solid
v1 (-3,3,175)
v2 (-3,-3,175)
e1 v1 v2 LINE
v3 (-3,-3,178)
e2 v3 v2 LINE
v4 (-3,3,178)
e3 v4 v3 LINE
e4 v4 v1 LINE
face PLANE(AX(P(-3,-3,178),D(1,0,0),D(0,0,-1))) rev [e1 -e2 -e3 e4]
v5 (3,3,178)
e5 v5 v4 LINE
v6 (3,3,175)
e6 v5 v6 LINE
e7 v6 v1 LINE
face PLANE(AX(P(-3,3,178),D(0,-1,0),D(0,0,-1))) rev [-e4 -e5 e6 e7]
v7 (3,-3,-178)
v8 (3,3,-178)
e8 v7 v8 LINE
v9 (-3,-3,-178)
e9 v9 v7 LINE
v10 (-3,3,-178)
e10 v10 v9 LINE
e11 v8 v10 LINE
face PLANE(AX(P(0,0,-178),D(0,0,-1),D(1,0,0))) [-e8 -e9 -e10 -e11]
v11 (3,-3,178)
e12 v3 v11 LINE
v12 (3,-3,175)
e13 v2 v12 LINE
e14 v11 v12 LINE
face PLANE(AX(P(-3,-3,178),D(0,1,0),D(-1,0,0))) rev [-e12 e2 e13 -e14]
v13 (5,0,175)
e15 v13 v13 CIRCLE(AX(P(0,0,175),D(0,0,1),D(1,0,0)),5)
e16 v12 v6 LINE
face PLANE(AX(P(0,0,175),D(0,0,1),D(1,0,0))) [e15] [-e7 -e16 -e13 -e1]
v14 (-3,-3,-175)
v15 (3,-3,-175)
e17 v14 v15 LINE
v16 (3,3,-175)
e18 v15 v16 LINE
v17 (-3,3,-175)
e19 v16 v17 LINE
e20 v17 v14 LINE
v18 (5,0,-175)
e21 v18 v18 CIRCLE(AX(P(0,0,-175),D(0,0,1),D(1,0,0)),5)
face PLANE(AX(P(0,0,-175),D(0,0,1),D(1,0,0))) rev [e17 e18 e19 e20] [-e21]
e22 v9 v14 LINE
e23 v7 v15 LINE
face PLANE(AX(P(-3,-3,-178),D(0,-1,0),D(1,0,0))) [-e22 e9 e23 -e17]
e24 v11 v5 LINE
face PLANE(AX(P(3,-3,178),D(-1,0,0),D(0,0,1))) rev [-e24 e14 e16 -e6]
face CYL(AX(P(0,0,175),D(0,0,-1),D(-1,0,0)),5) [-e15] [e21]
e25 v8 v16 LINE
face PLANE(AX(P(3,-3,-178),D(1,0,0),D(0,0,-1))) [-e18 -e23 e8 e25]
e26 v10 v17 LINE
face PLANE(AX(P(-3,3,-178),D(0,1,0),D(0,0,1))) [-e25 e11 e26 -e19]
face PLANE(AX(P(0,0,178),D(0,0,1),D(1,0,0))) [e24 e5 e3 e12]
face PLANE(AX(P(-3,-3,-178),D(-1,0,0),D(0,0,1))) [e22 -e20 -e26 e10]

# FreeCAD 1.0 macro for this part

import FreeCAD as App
import Part
import Sketcher
from FreeCAD import Vector


def add_polygon(sketch, points):
    """Adds a closed chain of lines whose ends are joined by coincident constraints."""
    first, n = sketch.GeometryCount, len(points)
    for a, b in zip(points, points[1:] + points[:1]):
        sketch.addGeometry(Part.LineSegment(App.Vector(*a, 0), App.Vector(*b, 0)), False)
    for i in range(n):
        sketch.addConstraint(Sketcher.Constraint("Coincident", first + i, 2, first + (i + 1) % n, 1))

doc = App.newDocument("Part")
body = doc.addObject("PartDesign::Body", "Body")

sketch1 = body.newObject("Sketcher::SketchObject", "Sketch")
sketch1.AttachmentSupport = (doc.getObject("XY_Plane"), [""])
sketch1.MapMode = "FlatFace"
sketch1.addGeometry(Part.Circle(Vector(0, 0, 0), Vector(0, 0, 1), 5), False)
sketch1.addConstraint([
    Sketcher.Constraint("Coincident", 0, 3, -1, 1),
    Sketcher.Constraint("Diameter", 0, 10.0),
])
pad1 = body.newObject("PartDesign::Pad", "Pad")
pad1.Profile = sketch1
pad1.Length = 350
pad1.Midplane = True

sketch2 = body.newObject("Sketcher::SketchObject", "Sketch001")
sketch2.AttachmentSupport = (doc.getObject("XY_Plane"), [""])
sketch2.MapMode = "FlatFace"
sketch2.AttachmentOffset = App.Placement(Vector(0, 0, 175), App.Rotation())
add_polygon(sketch2, [(-3, 3), (-3, -3), (3, -3), (3, 3)])
sketch2.addConstraint([
    Sketcher.Constraint("Vertical", 0),
    Sketcher.Constraint("Horizontal", 1),
    Sketcher.Constraint("Vertical", 2),
    Sketcher.Constraint("Horizontal", 3),
    Sketcher.Constraint("Symmetric", 0, 2, 2, 2, -1, 1),
    Sketcher.Constraint("Equal", 3, 0),
    Sketcher.Constraint("DistanceX", 1, 1, 1, 2, 6.0),
])
pad2 = body.newObject("PartDesign::Pad", "Pad001")
pad2.Profile = sketch2
pad2.Length = 3
doc.recompute()

mirrored = body.newObject("PartDesign::Mirrored", "Mirrored")
mirrored.Originals = [pad2]
mirrored.MirrorPlane = (doc.getObject("XY_Plane"), [""])
body.Tip = mirrored

doc.recompute()
